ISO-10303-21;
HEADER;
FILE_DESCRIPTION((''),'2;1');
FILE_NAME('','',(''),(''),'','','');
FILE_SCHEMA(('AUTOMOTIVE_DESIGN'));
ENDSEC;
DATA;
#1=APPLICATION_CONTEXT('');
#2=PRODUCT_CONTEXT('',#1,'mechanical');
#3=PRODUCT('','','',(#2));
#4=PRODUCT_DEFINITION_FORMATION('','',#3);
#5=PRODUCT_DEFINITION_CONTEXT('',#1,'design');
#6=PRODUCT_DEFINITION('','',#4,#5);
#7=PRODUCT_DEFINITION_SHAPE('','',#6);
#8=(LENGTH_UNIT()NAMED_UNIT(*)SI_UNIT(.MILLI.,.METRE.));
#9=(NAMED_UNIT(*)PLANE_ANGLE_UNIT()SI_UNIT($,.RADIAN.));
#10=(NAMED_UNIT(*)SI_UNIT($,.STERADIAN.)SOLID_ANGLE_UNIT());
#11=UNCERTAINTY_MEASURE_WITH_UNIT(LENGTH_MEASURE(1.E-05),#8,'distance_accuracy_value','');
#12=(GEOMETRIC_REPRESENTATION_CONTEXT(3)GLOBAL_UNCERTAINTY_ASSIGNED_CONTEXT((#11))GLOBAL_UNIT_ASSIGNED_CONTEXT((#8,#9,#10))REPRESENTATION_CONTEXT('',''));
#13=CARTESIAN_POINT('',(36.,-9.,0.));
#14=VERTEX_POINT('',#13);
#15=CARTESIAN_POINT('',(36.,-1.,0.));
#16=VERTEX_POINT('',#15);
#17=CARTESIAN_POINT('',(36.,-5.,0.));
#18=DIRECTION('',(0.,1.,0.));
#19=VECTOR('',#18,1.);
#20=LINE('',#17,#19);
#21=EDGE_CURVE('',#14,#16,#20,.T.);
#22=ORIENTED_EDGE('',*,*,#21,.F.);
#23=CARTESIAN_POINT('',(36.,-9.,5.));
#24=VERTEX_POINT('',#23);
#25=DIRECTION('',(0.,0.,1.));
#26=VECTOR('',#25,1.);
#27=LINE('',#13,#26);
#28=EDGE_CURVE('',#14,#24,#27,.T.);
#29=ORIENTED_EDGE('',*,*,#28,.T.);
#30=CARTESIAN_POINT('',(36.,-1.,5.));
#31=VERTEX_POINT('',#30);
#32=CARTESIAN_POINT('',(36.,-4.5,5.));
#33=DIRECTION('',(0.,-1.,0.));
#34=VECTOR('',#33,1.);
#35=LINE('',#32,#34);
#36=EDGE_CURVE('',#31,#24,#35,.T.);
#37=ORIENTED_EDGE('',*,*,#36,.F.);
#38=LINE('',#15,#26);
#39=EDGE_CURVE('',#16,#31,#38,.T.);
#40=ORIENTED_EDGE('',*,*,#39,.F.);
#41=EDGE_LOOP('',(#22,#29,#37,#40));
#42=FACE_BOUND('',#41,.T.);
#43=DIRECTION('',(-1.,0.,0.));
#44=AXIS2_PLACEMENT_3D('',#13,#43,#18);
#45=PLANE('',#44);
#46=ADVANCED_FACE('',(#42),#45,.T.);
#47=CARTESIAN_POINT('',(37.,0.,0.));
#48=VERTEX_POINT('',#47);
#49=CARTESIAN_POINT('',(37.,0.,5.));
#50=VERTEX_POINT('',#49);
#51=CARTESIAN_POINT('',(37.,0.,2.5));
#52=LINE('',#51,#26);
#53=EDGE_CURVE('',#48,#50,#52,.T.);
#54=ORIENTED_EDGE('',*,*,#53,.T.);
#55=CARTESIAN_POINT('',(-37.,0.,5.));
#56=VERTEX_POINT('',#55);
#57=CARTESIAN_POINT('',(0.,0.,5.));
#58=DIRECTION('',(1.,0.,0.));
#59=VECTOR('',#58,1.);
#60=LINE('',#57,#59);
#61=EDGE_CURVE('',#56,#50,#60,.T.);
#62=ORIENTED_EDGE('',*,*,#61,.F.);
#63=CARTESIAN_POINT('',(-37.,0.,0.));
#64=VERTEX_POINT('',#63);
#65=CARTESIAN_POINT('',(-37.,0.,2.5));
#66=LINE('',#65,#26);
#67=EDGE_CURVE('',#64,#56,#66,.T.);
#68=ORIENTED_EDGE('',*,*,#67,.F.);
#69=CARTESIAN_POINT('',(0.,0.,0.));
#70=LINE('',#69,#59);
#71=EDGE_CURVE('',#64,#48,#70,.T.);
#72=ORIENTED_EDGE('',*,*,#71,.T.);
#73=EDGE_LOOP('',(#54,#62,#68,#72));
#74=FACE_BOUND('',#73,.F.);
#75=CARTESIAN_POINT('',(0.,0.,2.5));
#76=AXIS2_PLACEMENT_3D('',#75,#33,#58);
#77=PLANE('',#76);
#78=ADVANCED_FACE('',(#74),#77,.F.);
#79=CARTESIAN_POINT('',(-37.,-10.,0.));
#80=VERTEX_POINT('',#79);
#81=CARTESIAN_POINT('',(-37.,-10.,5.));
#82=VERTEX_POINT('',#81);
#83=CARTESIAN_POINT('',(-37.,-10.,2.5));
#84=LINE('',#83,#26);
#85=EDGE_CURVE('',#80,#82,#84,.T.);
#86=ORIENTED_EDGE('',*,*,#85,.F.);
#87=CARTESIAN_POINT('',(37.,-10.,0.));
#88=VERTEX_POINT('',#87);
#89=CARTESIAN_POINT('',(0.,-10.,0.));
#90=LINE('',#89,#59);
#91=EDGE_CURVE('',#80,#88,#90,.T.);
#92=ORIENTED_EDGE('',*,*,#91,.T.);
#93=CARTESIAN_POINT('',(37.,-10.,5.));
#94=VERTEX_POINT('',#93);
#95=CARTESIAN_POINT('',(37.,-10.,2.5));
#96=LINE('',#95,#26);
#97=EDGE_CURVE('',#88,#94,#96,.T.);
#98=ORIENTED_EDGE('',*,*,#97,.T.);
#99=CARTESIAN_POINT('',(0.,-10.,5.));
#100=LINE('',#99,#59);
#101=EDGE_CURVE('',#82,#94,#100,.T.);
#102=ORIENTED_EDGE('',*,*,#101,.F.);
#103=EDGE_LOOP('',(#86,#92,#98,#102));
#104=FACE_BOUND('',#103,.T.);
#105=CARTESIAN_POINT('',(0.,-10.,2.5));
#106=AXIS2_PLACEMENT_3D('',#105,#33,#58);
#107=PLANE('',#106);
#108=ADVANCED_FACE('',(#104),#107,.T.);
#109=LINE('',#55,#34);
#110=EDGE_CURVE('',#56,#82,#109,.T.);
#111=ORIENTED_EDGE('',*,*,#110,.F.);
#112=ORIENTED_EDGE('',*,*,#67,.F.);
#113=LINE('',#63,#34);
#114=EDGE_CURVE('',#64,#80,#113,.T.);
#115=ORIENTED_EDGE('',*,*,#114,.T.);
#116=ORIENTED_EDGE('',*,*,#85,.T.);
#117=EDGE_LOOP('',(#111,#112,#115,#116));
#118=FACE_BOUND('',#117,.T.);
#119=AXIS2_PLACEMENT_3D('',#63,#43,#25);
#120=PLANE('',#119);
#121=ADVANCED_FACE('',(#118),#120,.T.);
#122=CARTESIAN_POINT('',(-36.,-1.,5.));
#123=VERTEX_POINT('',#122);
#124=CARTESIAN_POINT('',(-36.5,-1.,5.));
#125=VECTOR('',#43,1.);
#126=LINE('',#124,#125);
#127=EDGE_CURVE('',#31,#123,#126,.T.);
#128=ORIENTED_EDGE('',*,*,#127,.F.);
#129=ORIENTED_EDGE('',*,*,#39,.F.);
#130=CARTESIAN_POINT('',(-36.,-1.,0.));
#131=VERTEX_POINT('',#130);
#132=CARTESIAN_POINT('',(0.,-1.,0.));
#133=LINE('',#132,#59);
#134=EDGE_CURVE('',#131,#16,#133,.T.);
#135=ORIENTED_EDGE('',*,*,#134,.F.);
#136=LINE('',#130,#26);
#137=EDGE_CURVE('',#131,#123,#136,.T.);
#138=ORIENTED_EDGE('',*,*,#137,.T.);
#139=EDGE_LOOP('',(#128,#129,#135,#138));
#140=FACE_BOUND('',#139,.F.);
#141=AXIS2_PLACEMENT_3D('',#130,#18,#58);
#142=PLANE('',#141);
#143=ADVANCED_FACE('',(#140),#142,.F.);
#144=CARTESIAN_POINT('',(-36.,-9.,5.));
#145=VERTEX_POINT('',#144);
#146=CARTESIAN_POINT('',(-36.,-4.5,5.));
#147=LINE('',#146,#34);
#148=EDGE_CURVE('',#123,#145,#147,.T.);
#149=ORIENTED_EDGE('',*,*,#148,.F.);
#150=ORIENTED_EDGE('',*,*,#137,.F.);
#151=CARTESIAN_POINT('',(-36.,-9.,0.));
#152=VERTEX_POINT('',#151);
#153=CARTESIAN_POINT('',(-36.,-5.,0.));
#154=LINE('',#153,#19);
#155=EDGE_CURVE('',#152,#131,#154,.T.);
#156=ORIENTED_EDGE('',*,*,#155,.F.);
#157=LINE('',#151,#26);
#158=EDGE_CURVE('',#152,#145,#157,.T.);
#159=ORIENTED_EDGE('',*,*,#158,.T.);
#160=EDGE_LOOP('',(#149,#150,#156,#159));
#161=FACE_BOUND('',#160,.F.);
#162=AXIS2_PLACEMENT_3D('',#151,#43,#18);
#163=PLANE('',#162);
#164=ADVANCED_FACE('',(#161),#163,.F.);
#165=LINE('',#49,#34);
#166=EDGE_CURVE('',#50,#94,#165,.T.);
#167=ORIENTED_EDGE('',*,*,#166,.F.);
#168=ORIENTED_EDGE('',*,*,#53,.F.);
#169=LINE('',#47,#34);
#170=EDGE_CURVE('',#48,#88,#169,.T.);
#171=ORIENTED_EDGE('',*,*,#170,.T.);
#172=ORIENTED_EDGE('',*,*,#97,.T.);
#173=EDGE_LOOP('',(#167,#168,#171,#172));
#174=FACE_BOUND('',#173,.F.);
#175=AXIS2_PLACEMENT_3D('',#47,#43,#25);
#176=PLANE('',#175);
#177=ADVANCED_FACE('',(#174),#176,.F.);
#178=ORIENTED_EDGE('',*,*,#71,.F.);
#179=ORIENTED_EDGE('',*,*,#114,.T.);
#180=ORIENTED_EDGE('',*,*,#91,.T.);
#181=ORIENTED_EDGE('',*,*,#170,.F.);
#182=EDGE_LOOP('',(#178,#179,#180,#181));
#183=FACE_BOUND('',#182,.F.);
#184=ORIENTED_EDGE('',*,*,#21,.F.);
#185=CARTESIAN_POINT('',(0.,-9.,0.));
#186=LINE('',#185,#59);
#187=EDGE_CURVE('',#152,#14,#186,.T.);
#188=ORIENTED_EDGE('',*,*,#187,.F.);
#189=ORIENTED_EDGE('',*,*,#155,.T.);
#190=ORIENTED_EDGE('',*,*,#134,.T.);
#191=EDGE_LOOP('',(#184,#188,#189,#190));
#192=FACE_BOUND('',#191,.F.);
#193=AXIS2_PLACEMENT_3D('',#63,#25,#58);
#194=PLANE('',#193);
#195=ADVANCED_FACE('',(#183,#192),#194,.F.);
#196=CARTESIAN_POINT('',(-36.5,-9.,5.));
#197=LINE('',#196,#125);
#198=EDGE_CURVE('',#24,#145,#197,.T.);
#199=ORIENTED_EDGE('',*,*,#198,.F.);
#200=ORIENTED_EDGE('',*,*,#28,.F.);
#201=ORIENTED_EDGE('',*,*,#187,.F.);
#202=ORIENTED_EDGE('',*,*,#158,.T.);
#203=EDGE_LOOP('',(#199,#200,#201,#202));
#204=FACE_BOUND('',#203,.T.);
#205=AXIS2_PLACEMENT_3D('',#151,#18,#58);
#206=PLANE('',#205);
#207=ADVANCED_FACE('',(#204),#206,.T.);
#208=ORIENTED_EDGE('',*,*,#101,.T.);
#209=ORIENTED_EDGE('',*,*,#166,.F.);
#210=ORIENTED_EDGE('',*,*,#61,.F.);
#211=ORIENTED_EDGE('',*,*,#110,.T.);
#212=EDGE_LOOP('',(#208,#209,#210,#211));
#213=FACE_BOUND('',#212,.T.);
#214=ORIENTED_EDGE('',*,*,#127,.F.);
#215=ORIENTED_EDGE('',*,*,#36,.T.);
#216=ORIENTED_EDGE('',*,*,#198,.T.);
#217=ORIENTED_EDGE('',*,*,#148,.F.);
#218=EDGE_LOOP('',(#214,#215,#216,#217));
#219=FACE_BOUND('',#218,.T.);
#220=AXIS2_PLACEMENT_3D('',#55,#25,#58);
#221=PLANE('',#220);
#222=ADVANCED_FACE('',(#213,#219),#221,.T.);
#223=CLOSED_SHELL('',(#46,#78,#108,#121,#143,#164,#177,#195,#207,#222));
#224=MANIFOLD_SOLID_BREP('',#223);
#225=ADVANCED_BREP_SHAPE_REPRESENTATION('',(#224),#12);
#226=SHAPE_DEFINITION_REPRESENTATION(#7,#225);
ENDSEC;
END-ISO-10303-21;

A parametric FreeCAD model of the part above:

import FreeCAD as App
import Part
import Sketcher

V = App.Vector

doc = App.newDocument("Part")
body = doc.addObject("PartDesign::Body", "Body")

# Sketch on XZ plane
sketch1 = body.newObject("Sketcher::SketchObject", "Sketch")
sketch1.AttachmentSupport = (doc.getObject("XZ_Plane"), [""])
sketch1.MapMode = "FlatFace"
sketch1.addGeometry(Part.LineSegment(V(-37, 5, 0), V(-37, 0, 0)), False)
sketch1.addGeometry(Part.LineSegment(V(-37, 0, 0), V(37, 0, 0)), False)
sketch1.addGeometry(Part.LineSegment(V(37, 0, 0), V(37, 5, 0)), False)
sketch1.addGeometry(Part.LineSegment(V(37, 5, 0), V(-37, 5, 0)), False)
sketch1.addConstraint(Sketcher.Constraint("Coincident", 0, 2, 1, 1))
sketch1.addConstraint(Sketcher.Constraint("Coincident", 1, 2, 2, 1))
sketch1.addConstraint(Sketcher.Constraint("Coincident", 2, 2, 3, 1))
sketch1.addConstraint(Sketcher.Constraint("Coincident", 3, 2, 0, 1))
sketch1.addConstraint(Sketcher.Constraint("Vertical", 0))
sketch1.addConstraint(Sketcher.Constraint("Horizontal", 1))
sketch1.addConstraint(Sketcher.Constraint("Vertical", 2))
sketch1.addConstraint(Sketcher.Constraint("Horizontal", 3))
sketch1.addConstraint(Sketcher.Constraint("Symmetric", 0, 2, 1, 2, -1, 1))
sketch1.addConstraint(Sketcher.Constraint("DistanceX", 1, 1, 1, 2, 74.0))
sketch1.addConstraint(Sketcher.Constraint("DistanceY", 0, 2, 0, 1, 5.0))
pad1 = body.newObject("PartDesign::Pad", "Pad")
pad1.Profile = sketch1
pad1.Length = 10

# Sketch on XY plane
sketch2 = body.newObject("Sketcher::SketchObject", "Sketch001")
sketch2.AttachmentSupport = (doc.getObject("XY_Plane"), [""])
sketch2.MapMode = "FlatFace"
sketch2.addGeometry(Part.LineSegment(V(-36, -1, 0), V(-36, -9, 0)), False)
sketch2.addGeometry(Part.LineSegment(V(-36, -9, 0), V(36, -9, 0)), False)
sketch2.addGeometry(Part.LineSegment(V(36, -9, 0), V(36, -1, 0)), False)
sketch2.addGeometry(Part.LineSegment(V(36, -1, 0), V(-36, -1, 0)), False)
sketch2.addConstraint(Sketcher.Constraint("Coincident", 0, 2, 1, 1))
sketch2.addConstraint(Sketcher.Constraint("Coincident", 1, 2, 2, 1))
sketch2.addConstraint(Sketcher.Constraint("Coincident", 2, 2, 3, 1))
sketch2.addConstraint(Sketcher.Constraint("Coincident", 3, 2, 0, 1))
sketch2.addConstraint(Sketcher.Constraint("Vertical", 0))
sketch2.addConstraint(Sketcher.Constraint("Horizontal", 1))
sketch2.addConstraint(Sketcher.Constraint("Vertical", 2))
sketch2.addConstraint(Sketcher.Constraint("Horizontal", 3))
sketch2.addConstraint(Sketcher.Constraint("DistanceX", 1, 1, 1, 2, 72.0))
sketch2.addConstraint(Sketcher.Constraint("DistanceY", 0, 2, 0, 1, 8.0))
sketch2.addConstraint(Sketcher.Constraint("DistanceX", 0, 2, -1, 1, 36.0))
sketch2.addConstraint(Sketcher.Constraint("DistanceY", 0, 2, -1, 1, 9.0))
pocket1 = body.newObject("PartDesign::Pocket", "Pocket")
pocket1.Profile = sketch2
pocket1.Length = 16.7
pocket1.Reversed = True

doc.recompute()
